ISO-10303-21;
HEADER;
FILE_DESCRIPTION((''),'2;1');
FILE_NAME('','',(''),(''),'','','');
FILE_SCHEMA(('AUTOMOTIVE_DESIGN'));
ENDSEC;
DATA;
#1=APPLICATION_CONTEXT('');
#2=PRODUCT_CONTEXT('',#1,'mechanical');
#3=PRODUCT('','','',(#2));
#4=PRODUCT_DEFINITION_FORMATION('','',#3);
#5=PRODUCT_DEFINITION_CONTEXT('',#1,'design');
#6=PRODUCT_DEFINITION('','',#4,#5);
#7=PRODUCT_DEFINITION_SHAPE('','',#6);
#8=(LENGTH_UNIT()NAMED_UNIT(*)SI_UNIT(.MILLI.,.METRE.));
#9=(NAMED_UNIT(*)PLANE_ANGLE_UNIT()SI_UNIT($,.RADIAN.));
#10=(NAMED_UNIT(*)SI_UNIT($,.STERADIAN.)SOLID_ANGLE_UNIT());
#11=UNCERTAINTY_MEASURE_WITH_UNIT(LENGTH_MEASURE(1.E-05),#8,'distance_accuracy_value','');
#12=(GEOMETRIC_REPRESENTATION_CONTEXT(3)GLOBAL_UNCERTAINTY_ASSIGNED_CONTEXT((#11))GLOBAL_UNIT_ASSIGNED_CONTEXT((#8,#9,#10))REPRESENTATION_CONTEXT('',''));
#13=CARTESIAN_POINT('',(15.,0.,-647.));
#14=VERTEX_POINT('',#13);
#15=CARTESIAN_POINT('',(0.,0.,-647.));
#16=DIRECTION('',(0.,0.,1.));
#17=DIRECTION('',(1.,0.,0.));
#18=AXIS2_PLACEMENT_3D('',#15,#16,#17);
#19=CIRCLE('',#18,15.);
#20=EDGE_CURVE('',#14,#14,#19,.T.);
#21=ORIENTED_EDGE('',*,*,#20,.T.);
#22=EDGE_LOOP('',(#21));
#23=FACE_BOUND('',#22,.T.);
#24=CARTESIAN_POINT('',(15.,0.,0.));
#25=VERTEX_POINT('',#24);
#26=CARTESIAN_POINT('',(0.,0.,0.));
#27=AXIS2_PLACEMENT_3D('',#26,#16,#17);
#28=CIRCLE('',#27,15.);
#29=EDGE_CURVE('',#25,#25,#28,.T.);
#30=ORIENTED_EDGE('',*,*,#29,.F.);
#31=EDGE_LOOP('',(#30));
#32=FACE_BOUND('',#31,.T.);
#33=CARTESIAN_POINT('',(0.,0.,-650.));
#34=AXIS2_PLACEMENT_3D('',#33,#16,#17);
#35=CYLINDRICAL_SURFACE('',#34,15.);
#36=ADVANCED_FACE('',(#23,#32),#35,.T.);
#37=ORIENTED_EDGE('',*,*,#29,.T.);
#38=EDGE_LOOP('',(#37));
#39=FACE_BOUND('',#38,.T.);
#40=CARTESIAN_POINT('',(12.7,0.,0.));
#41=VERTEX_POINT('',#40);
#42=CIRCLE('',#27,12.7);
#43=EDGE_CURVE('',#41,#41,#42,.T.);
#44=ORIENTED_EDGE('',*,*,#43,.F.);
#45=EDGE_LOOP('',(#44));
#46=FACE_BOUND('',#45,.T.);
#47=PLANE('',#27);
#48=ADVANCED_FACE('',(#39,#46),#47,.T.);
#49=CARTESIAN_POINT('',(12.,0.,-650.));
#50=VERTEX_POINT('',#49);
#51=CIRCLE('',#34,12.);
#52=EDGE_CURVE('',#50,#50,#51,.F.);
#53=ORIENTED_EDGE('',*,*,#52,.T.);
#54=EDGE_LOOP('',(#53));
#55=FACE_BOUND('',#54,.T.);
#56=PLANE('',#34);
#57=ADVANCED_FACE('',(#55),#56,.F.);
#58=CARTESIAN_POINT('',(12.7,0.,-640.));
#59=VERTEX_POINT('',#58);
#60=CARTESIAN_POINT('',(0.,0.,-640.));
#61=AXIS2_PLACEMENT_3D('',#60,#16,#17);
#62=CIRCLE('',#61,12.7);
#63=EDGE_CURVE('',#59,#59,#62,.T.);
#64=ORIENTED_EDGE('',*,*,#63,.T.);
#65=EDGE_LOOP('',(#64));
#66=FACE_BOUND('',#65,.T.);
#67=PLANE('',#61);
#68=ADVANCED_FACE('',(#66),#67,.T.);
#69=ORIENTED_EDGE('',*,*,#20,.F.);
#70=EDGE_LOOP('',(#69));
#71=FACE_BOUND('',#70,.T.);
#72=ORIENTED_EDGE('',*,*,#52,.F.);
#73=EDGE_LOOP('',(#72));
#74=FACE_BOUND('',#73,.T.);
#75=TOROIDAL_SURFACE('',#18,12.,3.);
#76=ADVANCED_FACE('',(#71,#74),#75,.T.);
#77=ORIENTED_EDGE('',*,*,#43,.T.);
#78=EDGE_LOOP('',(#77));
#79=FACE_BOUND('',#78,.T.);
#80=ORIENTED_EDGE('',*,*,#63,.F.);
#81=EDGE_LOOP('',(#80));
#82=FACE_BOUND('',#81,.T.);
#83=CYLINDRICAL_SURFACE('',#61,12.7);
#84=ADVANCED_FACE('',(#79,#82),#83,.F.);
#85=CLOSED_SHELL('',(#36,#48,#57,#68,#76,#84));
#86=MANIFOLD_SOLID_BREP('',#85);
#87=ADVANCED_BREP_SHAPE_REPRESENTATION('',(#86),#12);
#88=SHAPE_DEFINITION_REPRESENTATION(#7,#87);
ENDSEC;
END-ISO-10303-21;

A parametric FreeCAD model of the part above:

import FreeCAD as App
import Part
import Sketcher

V = App.Vector


def edges_at(feature, points):
    """Names of the edges that pass closest to the given points."""
    edges = feature.Shape.Edges
    near = lambda p: min(range(len(edges)), key=lambda i: edges[i].distToShape(Part.Vertex(*p))[0])
    return sorted({f"Edge{near(p) + 1}" for p in points})

doc = App.newDocument("Part")
body = doc.addObject("PartDesign::Body", "Body")

# Sketch on XY plane
sketch1 = body.newObject("Sketcher::SketchObject", "Sketch")
sketch1.AttachmentSupport = (doc.getObject("XY_Plane"), [""])
sketch1.MapMode = "FlatFace"
sketch1.addGeometry(Part.Circle(V(0, 0, 0), V(0, 0, 1), 15), False)
sketch1.addConstraint([
    Sketcher.Constraint("Coincident", 0, 3, -1, 1),
    Sketcher.Constraint("Diameter", 0, 30.0),
])
pad1 = body.newObject("PartDesign::Pad", "Pad")
pad1.Profile = sketch1
pad1.Length = 650
pad1.Reversed = True

# Sketch on XY plane
sketch2 = body.newObject("Sketcher::SketchObject", "Sketch001")
sketch2.AttachmentSupport = (doc.getObject("XY_Plane"), [""])
sketch2.MapMode = "FlatFace"
sketch2.addGeometry(Part.Circle(V(0, 0, 0), V(0, 0, 1), 13), False)
sketch2.addConstraint([
    Sketcher.Constraint("Coincident", 0, 3, -1, 1),
    Sketcher.Constraint("Diameter", 0, 25.4),
])
pocket1 = body.newObject("PartDesign::Pocket", "Pocket")
pocket1.Profile = sketch2
pocket1.Length = 640
doc.recompute()

fillet = body.newObject("PartDesign::Fillet", "Fillet")
fillet.Base = (pocket1, edges_at(pocket1, [(-15, 0, -650)]))
fillet.Radius = 3

doc.recompute()
